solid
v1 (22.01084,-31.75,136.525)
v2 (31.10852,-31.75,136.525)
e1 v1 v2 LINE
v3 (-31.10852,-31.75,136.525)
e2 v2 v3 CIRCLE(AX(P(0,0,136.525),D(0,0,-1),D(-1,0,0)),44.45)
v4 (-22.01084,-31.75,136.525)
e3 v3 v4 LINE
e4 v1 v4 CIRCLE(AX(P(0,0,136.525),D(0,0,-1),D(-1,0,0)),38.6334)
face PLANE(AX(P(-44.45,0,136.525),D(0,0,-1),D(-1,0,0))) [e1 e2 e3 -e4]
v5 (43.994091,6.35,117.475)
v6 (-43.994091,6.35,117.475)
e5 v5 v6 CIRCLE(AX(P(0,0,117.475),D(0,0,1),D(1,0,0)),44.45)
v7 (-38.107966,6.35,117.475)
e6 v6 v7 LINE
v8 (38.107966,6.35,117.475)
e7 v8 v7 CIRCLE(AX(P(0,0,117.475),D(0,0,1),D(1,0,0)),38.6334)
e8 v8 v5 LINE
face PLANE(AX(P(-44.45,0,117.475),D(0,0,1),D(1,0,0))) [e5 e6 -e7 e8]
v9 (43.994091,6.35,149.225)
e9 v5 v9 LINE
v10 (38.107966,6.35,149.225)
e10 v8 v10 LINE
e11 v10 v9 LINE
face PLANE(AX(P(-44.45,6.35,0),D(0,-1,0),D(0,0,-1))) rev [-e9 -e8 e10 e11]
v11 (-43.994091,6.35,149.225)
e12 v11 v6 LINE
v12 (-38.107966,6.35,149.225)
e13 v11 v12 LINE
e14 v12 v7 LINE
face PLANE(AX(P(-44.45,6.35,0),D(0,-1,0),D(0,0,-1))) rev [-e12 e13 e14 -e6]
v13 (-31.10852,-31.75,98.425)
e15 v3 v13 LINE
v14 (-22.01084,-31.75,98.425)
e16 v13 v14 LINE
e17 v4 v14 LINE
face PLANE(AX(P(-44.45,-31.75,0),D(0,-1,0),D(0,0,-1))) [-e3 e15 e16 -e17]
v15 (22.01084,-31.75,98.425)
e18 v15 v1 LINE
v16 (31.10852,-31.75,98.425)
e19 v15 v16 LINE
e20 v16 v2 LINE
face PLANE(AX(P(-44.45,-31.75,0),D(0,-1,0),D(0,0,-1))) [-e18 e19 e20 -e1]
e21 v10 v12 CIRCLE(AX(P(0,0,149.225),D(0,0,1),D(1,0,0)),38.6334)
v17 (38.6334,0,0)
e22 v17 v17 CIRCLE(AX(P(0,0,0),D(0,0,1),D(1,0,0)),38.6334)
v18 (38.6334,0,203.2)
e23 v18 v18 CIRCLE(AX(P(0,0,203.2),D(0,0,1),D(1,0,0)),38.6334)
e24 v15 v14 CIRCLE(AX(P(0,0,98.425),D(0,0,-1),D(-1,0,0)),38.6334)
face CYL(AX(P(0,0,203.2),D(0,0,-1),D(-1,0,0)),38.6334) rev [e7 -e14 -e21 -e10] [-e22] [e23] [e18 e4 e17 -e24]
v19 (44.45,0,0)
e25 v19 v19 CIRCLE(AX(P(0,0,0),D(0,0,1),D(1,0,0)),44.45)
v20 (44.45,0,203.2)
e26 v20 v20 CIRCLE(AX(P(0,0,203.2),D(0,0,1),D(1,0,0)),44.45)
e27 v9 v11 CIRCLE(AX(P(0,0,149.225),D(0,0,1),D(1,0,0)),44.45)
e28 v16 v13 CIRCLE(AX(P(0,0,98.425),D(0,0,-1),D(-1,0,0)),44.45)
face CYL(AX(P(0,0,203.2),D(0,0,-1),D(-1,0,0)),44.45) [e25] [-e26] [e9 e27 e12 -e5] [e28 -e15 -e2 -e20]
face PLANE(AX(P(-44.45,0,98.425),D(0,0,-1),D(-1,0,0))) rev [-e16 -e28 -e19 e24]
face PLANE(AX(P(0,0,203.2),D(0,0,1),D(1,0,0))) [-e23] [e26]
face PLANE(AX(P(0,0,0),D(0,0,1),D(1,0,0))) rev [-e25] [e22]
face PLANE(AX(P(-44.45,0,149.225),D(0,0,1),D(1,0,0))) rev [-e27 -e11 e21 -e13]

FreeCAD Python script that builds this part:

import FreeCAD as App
import Part
import Sketcher

V = App.Vector
Q = App.Units.Quantity

doc = App.newDocument("Part")
params = doc.addObject("Spreadsheet::Sheet", "Params")
for row, (alias, value) in enumerate([
    ("sketch1_diameter", "3.5 in"),
    ("sketch1_diameter2", "3.042 in"),
    ("pad1_length", "8 in"),
    ("sketch2_width", "1.5 in"),
    ("sketch2_height", "1.25 in"),
    ("sketch3_width", "0.5 in"),
    ("sketch3_height", "1.5 in"),
], start=1):
    params.set(f"A{row}", alias)
    params.set(f"B{row}", "=" + value)
    params.setAlias(f"B{row}", alias)

body = doc.addObject("PartDesign::Body", "Body")

# Sketch on XY plane
sketch1 = body.newObject("Sketcher::SketchObject", "Sketch")
sketch1.AttachmentSupport = (doc.getObject("XY_Plane"), [""])
sketch1.MapMode = "FlatFace"
sketch1.addGeometry([
    Part.Circle(V(0, 0, 0), V(0, 0, 1), 44),
    Part.Circle(V(0, 0, 0), V(0, 0, 1), 39),
], False)
sketch1.addConstraint([
    Sketcher.Constraint("Coincident", 0, 3, -1, 1),
    Sketcher.Constraint("Coincident", 1, 3, -1, 1),
    Sketcher.Constraint("Diameter", 0, Q("3.5 in")),
    Sketcher.Constraint("Diameter", 1, Q("3.042 in")),
])
sketch1.setExpression("Constraints[2]", "Params.sketch1_diameter")
sketch1.setExpression("Constraints[3]", "Params.sketch1_diameter2")
pad1 = body.newObject("PartDesign::Pad", "Pad")
pad1.Profile = sketch1
pad1.setExpression("Length", "Params.pad1_length")

# Sketch on YZ plane
sketch2 = body.newObject("Sketcher::SketchObject", "Sketch001")
sketch2.AttachmentSupport = (doc.getObject("YZ_Plane"), [""])
sketch2.MapMode = "FlatFace"
sketch2.addGeometry([
    Part.LineSegment(V(44, 149, 0), V(6, 149, 0)),
    Part.LineSegment(V(6, 149, 0), V(6, 117, 0)),
    Part.LineSegment(V(6, 117, 0), V(44, 117, 0)),
    Part.LineSegment(V(44, 117, 0), V(44, 149, 0)),
], False)
sketch2.addConstraint([
    Sketcher.Constraint("Coincident", 0, 2, 1, 1),
    Sketcher.Constraint("Coincident", 1, 2, 2, 1),
    Sketcher.Constraint("Coincident", 2, 2, 3, 1),
    Sketcher.Constraint("Coincident", 3, 2, 0, 1),
    Sketcher.Constraint("Horizontal", 0),
    Sketcher.Constraint("Vertical", 1),
    Sketcher.Constraint("Horizontal", 2),
    Sketcher.Constraint("Vertical", 3),
    Sketcher.Constraint("DistanceX", 0, 2, 0, 1, Q("1.5 in")),
    Sketcher.Constraint("DistanceY", 1, 2, 1, 1, Q("1.25 in")),
    Sketcher.Constraint("DistanceX", -1, 1, 0, 2, Q("0.25 in")),
    Sketcher.Constraint("DistanceY", -1, 1, 0, 2, Q("5.875 in")),
])
sketch2.setExpression("Constraints[8]", "Params.sketch2_width")
sketch2.setExpression("Constraints[9]", "Params.sketch2_height")
pocket1 = body.newObject("PartDesign::Pocket", "Pocket")
pocket1.Profile = sketch2
pocket1.Type = "ThroughAll"
pocket1.Midplane = True

# Sketch on YZ plane
sketch3 = body.newObject("Sketcher::SketchObject", "Sketch002")
sketch3.AttachmentSupport = (doc.getObject("YZ_Plane"), [""])
sketch3.MapMode = "FlatFace"
sketch3.addGeometry([
    Part.LineSegment(V(-32, 137, 0), V(-44, 137, 0)),
    Part.LineSegment(V(-44, 137, 0), V(-44, 98, 0)),
    Part.LineSegment(V(-44, 98, 0), V(-32, 98, 0)),
    Part.LineSegment(V(-32, 98, 0), V(-32, 137, 0)),
], False)
sketch3.addConstraint([
    Sketcher.Constraint("Coincident", 0, 2, 1, 1),
    Sketcher.Constraint("Coincident", 1, 2, 2, 1),
    Sketcher.Constraint("Coincident", 2, 2, 3, 1),
    Sketcher.Constraint("Coincident", 3, 2, 0, 1),
    Sketcher.Constraint("Horizontal", 0),
    Sketcher.Constraint("Vertical", 1),
    Sketcher.Constraint("Horizontal", 2),
    Sketcher.Constraint("Vertical", 3),
    Sketcher.Constraint("DistanceX", 0, 2, 0, 1, Q("0.5 in")),
    Sketcher.Constraint("DistanceY", 1, 2, 1, 1, Q("1.5 in")),
    Sketcher.Constraint("DistanceX", 0, 2, -1, 1, Q("1.75 in")),
    Sketcher.Constraint("DistanceY", -1, 1, 0, 2, Q("5.375 in")),
])
sketch3.setExpression("Constraints[8]", "Params.sketch3_width")
sketch3.setExpression("Constraints[9]", "Params.sketch3_height")
pocket2 = body.newObject("PartDesign::Pocket", "Pocket001")
pocket2.Profile = sketch3
pocket2.Type = "ThroughAll"
pocket2.Midplane = True

doc.recompute()
